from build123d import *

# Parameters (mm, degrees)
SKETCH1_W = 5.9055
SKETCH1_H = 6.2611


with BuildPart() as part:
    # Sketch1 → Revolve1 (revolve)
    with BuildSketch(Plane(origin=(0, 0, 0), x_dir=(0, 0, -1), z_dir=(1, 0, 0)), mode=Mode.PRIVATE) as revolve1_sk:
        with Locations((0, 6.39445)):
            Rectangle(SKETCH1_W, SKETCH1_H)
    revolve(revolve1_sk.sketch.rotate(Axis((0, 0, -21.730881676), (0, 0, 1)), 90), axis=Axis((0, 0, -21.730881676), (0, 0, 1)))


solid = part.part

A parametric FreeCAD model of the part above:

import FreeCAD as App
import Part
import Sketcher

V = App.Vector

doc = App.newDocument("Part")
params = doc.addObject("Spreadsheet::Sheet", "Params")
for row, (alias, value) in enumerate([
    ("revolution_angle", "360 deg"),
], start=1):
    params.set(f"A{row}", alias)
    params.set(f"B{row}", "=" + value)
    params.setAlias(f"B{row}", alias)

body = doc.addObject("PartDesign::Body", "Body")

sketch1 = body.newObject("Sketcher::SketchObject", "Sketch")
sketch1.AttachmentSupport = (doc.getObject("YZ_Plane"), [""])
sketch1.MapMode = "FlatFace"
sketch1.addGeometry(Part.LineSegment(V(10, 3, 0), V(3, 3, 0)), False)
sketch1.addGeometry(Part.LineSegment(V(3, 3, 0), V(3, -3, 0)), False)
sketch1.addGeometry(Part.LineSegment(V(3, -3, 0), V(10, -3, 0)), False)
sketch1.addGeometry(Part.LineSegment(V(10, -3, 0), V(10, 3, 0)), False)
sketch1.addConstraint(Sketcher.Constraint("Coincident", 0, 2, 1, 1))
sketch1.addConstraint(Sketcher.Constraint("Coincident", 1, 2, 2, 1))
sketch1.addConstraint(Sketcher.Constraint("Coincident", 2, 2, 3, 1))
sketch1.addConstraint(Sketcher.Constraint("Coincident", 3, 2, 0, 1))
sketch1.addConstraint(Sketcher.Constraint("Horizontal", 0))
sketch1.addConstraint(Sketcher.Constraint("Vertical", 1))
sketch1.addConstraint(Sketcher.Constraint("Horizontal", 2))
sketch1.addConstraint(Sketcher.Constraint("Vertical", 3))
sketch1.addConstraint(Sketcher.Constraint("DistanceX", 0, 2, 0, 1, 6.2611))
sketch1.addConstraint(Sketcher.Constraint("DistanceY", 1, 2, 1, 1, 5.9055))
sketch1.addConstraint(Sketcher.Constraint("DistanceX", -1, 1, 2, 2, 9.525))
sketch1.addConstraint(Sketcher.Constraint("DistanceY", -1, 1, 0, 2, 2.95275))
revolution = body.newObject("PartDesign::Revolution", "Revolution")
revolution.Profile = sketch1
revolution.ReferenceAxis = (sketch1, ["V_Axis"])
revolution.setExpression("Angle", "Params.revolution_angle")

doc.recompute()
